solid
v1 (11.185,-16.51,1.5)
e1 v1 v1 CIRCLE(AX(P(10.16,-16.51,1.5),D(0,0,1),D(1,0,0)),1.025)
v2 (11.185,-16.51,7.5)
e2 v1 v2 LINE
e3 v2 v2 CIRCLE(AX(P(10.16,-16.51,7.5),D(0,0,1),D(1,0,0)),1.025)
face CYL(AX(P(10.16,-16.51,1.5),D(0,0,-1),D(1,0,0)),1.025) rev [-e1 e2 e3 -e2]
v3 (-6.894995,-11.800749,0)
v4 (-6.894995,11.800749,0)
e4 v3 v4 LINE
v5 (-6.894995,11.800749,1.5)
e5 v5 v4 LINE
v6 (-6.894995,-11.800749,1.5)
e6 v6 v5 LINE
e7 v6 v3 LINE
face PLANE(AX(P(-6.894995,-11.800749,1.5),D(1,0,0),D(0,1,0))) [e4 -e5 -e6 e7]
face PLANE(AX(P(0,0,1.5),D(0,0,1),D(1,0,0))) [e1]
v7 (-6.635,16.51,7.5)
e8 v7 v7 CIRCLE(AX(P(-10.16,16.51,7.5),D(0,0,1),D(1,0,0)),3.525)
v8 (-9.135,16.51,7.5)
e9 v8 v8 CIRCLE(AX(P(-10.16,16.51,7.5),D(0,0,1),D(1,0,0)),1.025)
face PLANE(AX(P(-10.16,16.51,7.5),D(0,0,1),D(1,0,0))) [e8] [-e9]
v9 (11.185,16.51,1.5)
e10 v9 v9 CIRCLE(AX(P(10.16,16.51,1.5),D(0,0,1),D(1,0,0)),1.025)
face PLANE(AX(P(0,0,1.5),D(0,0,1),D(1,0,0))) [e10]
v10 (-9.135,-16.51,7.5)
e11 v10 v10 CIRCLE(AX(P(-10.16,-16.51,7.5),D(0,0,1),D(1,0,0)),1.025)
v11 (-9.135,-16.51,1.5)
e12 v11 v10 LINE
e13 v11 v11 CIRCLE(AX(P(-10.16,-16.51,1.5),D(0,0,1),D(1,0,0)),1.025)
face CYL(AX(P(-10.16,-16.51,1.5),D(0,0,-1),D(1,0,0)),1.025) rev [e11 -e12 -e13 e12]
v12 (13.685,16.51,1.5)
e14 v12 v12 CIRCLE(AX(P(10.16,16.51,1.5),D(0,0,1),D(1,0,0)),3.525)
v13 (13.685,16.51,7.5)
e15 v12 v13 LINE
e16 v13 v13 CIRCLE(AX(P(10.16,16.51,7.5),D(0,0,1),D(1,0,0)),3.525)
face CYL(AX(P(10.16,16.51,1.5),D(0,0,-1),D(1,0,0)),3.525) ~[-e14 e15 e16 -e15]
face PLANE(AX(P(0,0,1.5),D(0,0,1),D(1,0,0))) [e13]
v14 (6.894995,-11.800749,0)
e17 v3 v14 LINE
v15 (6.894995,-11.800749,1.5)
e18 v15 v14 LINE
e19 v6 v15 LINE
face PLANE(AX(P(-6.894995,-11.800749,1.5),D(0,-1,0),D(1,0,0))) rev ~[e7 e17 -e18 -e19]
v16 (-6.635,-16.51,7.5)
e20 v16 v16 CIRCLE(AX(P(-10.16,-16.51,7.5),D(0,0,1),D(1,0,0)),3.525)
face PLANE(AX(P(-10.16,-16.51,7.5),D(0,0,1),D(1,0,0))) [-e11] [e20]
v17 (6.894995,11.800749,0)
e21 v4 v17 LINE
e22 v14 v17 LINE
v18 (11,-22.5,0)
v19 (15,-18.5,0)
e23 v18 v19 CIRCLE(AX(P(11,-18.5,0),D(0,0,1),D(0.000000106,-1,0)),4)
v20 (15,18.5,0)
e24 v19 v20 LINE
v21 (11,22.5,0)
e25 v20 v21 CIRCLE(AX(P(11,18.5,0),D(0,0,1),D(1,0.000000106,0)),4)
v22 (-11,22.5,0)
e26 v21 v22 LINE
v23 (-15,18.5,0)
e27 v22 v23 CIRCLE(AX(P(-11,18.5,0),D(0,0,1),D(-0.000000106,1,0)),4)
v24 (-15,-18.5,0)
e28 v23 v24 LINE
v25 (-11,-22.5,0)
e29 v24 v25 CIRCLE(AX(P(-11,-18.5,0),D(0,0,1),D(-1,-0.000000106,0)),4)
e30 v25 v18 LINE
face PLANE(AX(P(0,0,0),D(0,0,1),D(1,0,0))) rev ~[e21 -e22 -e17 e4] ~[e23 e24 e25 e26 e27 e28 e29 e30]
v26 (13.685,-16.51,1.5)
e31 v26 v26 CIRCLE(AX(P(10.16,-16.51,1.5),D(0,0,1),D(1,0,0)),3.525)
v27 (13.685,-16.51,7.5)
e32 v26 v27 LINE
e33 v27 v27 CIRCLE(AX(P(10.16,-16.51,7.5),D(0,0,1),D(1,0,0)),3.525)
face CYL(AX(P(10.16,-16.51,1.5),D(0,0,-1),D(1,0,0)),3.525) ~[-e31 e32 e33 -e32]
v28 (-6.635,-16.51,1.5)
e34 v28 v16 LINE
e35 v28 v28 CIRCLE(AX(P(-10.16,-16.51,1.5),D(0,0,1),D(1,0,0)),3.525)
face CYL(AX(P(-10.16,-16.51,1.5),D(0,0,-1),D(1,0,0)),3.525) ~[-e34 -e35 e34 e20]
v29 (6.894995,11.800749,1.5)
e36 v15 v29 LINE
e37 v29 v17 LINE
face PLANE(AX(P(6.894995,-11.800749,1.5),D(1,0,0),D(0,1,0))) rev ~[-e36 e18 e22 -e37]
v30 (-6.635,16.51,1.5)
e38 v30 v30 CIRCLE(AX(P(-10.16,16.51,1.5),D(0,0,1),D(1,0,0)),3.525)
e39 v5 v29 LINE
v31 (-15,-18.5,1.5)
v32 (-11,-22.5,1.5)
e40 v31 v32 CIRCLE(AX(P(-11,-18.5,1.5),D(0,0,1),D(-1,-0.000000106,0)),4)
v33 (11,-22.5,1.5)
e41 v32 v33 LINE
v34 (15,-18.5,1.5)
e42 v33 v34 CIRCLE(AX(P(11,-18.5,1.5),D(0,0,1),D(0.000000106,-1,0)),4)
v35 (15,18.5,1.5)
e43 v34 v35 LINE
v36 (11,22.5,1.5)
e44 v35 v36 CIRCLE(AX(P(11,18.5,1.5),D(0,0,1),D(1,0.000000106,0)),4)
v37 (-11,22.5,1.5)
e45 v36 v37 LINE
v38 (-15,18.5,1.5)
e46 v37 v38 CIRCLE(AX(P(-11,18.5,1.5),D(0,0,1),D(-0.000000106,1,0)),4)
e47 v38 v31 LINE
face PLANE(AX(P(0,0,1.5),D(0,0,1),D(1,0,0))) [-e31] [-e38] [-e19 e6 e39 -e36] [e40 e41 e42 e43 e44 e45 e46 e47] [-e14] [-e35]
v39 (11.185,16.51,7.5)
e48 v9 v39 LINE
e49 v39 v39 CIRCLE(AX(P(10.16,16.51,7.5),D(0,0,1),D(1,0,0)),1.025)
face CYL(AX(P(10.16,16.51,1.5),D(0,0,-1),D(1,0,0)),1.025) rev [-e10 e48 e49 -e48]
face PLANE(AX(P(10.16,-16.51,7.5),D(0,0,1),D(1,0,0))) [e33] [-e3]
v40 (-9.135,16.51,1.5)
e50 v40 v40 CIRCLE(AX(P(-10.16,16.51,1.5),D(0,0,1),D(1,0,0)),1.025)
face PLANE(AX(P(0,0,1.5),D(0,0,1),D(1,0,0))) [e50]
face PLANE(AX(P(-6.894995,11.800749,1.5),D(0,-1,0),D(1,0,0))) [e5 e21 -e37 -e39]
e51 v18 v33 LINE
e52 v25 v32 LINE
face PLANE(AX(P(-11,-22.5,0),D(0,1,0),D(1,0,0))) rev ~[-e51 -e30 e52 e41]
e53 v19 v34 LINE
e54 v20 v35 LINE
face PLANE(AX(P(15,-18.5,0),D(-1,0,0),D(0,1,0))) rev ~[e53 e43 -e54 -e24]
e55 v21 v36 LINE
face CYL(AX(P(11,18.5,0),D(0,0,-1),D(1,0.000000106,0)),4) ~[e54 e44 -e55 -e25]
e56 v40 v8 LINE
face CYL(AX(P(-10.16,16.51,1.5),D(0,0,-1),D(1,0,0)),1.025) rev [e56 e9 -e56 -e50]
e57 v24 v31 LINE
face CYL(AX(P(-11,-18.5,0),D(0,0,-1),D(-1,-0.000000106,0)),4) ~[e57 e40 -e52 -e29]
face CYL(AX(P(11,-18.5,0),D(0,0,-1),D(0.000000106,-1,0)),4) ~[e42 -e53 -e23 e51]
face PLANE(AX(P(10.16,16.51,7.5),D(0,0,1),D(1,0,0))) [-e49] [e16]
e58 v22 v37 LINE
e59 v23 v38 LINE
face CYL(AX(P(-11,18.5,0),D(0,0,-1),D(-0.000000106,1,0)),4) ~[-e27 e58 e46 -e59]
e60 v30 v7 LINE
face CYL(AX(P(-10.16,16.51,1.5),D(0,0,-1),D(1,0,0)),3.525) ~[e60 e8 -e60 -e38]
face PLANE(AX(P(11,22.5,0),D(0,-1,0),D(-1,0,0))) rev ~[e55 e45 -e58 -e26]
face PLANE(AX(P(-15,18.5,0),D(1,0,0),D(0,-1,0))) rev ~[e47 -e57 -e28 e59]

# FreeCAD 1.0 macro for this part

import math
import FreeCAD as App
import Part
import Sketcher


def add_polygon(sketch, points):
    """Adds a closed chain of lines whose ends are joined by coincident constraints."""
    first, n = sketch.GeometryCount, len(points)
    for a, b in zip(points, points[1:] + points[:1]):
        sketch.addGeometry(Part.LineSegment(App.Vector(*a, 0), App.Vector(*b, 0)), False)
    for i in range(n):
        sketch.addConstraint(Sketcher.Constraint("Coincident", first + i, 2, first + (i + 1) % n, 1))

doc = App.newDocument("Part")
body = doc.addObject("PartDesign::Body", "Body")

# Sketch on XY plane
sketch1 = doc.addObject("Sketcher::SketchObject", "Sketch")
body.addObject(sketch1)
sketch1.AttachmentSupport = (doc.XY_Plane, [""])
sketch1.MapMode = "FlatFace"
sketch1.addGeometry([
    Part.LineSegment(App.Vector(11, 22.5, 0), App.Vector(-11, 22.5, 0)),  # 0
    Part.ArcOfCircle(Part.Circle(App.Vector(-11, 18.5, 0), App.Vector(0, 0, 1), 4), math.radians(90), math.radians(180)),  # 1
    Part.LineSegment(App.Vector(-15, 18.5, 0), App.Vector(-15, -18.5, 0)),  # 2
    Part.ArcOfCircle(Part.Circle(App.Vector(-11, -18.5, 0), App.Vector(0, 0, 1), 4), math.radians(-180), math.radians(-90)),  # 3
    Part.LineSegment(App.Vector(-11, -22.5, 0), App.Vector(11, -22.5, 0)),  # 4
    Part.ArcOfCircle(Part.Circle(App.Vector(11, -18.5, 0), App.Vector(0, 0, 1), 4), math.radians(-90), math.radians(0)),  # 5
    Part.LineSegment(App.Vector(15, -18.5, 0), App.Vector(15, 18.5, 0)),  # 6
    Part.ArcOfCircle(Part.Circle(App.Vector(11, 18.5, 0), App.Vector(0, 0, 1), 4), math.radians(0), math.radians(90)),  # 7
], False)
sketch1.addConstraint([
    Sketcher.Constraint("Tangent", 0, 2, 1, 1),
    Sketcher.Constraint("Tangent", 1, 2, 2, 1),
    Sketcher.Constraint("Tangent", 2, 2, 3, 1),
    Sketcher.Constraint("Tangent", 3, 2, 4, 1),
    Sketcher.Constraint("Tangent", 4, 2, 5, 1),
    Sketcher.Constraint("Tangent", 5, 2, 6, 1),
    Sketcher.Constraint("Tangent", 6, 2, 7, 1),
    Sketcher.Constraint("Tangent", 7, 2, 0, 1),
    Sketcher.Constraint("Horizontal", 0),
    Sketcher.Constraint("Vertical", 2),
    Sketcher.Constraint("Horizontal", 4),
    Sketcher.Constraint("Vertical", 6),
    Sketcher.Constraint("Equal", 1, 3),
    Sketcher.Constraint("Equal", 3, 5),
    Sketcher.Constraint("Equal", 5, 7),
    Sketcher.Constraint("Symmetric", 1, 3, 5, 3, -1, 1),
    Sketcher.Constraint("Radius", 1, 4.0),
    Sketcher.Constraint("DistanceX", 0, 2, 0, 1, 22.0),
    Sketcher.Constraint("DistanceY", 2, 2, 2, 1, 37.0),
])
pad1 = doc.addObject("PartDesign::Pad", "Pad")
body.addObject(pad1)
pad1.Profile = sketch1
pad1.Length = 1.5

# Sketch on XY plane
sketch2 = doc.addObject("Sketcher::SketchObject", "Sketch001")
body.addObject(sketch2)
sketch2.AttachmentSupport = (doc.XY_Plane, [""])
sketch2.MapMode = "FlatFace"
sketch2.AttachmentOffset = App.Placement(App.Vector(0, 0, 1.5), App.Rotation())
sketch2.addGeometry([
    Part.Circle(App.Vector(-10.2, 16.5, 0), App.Vector(0, 0, 1), 3.5),  # 0
    Part.Circle(App.Vector(-10.2, 16.5, 0), App.Vector(0, 0, 1), 1),  # 1
    Part.Circle(App.Vector(10.2, 16.5, 0), App.Vector(0, 0, 1), 3.5),  # 2
    Part.Circle(App.Vector(10.2, 16.5, 0), App.Vector(0, 0, 1), 1),  # 3
    Part.Circle(App.Vector(-10.2, -16.5, 0), App.Vector(0, 0, 1), 3.5),  # 4
    Part.Circle(App.Vector(-10.2, -16.5, 0), App.Vector(0, 0, 1), 1),  # 5
    Part.Circle(App.Vector(10.2, -16.5, 0), App.Vector(0, 0, 1), 3.5),  # 6
    Part.Circle(App.Vector(10.2, -16.5, 0), App.Vector(0, 0, 1), 1),  # 7
], False)
sketch2.addConstraint([
    Sketcher.Constraint("Coincident", 1, 3, 0, 3),
    Sketcher.Constraint("Coincident", 3, 3, 2, 3),
    Sketcher.Constraint("Coincident", 5, 3, 4, 3),
    Sketcher.Constraint("Coincident", 7, 3, 6, 3),
    Sketcher.Constraint("Equal", 0, 2),
    Sketcher.Constraint("Equal", 1, 3),
    Sketcher.Constraint("Equal", 2, 4),
    Sketcher.Constraint("Equal", 3, 5),
    Sketcher.Constraint("Equal", 4, 6),
    Sketcher.Constraint("Equal", 5, 7),
    Sketcher.Constraint("Symmetric", 2, 3, 4, 3, -1, 1),
    Sketcher.Constraint("Symmetric", 0, 3, 6, 3, -1, 1),
    Sketcher.Constraint("Symmetric", 0, 3, 2, 3, -2),
    Sketcher.Constraint("Diameter", 0, 7.05),
    Sketcher.Constraint("Diameter", 1, 2.05),
    Sketcher.Constraint("DistanceX", 0, 3, -1, 1, 10.16),
    Sketcher.Constraint("DistanceY", -1, 1, 0, 3, 16.51),
])
pad2 = doc.addObject("PartDesign::Pad", "Pad001")
body.addObject(pad2)
pad2.Profile = sketch2
pad2.Length = 6

# Sketch on XY plane
sketch3 = doc.addObject("Sketcher::SketchObject", "Sketch002")
body.addObject(sketch3)
sketch3.AttachmentSupport = (doc.XY_Plane, [""])
sketch3.MapMode = "FlatFace"
sketch3.AttachmentOffset = App.Placement(App.Vector(0, 0, 1.5), App.Rotation())
add_polygon(sketch3, [(-7, 12), (-7, -12), (7, -12), (7, 12)])  # lines 0-3
sketch3.addConstraint([
    Sketcher.Constraint("Vertical", 0),
    Sketcher.Constraint("Horizontal", 1),
    Sketcher.Constraint("Vertical", 2),
    Sketcher.Constraint("Horizontal", 3),
    Sketcher.Constraint("Symmetric", 0, 2, 2, 2, -1, 1),
    Sketcher.Constraint("DistanceX", 1, 1, 1, 2, 13.78999),
    Sketcher.Constraint("DistanceY", 0, 2, 0, 1, 23.601498),
])
pocket1 = doc.addObject("PartDesign::Pocket", "Pocket")
body.addObject(pocket1)
pocket1.Profile = sketch3
pocket1.Length = 2

doc.recompute()
